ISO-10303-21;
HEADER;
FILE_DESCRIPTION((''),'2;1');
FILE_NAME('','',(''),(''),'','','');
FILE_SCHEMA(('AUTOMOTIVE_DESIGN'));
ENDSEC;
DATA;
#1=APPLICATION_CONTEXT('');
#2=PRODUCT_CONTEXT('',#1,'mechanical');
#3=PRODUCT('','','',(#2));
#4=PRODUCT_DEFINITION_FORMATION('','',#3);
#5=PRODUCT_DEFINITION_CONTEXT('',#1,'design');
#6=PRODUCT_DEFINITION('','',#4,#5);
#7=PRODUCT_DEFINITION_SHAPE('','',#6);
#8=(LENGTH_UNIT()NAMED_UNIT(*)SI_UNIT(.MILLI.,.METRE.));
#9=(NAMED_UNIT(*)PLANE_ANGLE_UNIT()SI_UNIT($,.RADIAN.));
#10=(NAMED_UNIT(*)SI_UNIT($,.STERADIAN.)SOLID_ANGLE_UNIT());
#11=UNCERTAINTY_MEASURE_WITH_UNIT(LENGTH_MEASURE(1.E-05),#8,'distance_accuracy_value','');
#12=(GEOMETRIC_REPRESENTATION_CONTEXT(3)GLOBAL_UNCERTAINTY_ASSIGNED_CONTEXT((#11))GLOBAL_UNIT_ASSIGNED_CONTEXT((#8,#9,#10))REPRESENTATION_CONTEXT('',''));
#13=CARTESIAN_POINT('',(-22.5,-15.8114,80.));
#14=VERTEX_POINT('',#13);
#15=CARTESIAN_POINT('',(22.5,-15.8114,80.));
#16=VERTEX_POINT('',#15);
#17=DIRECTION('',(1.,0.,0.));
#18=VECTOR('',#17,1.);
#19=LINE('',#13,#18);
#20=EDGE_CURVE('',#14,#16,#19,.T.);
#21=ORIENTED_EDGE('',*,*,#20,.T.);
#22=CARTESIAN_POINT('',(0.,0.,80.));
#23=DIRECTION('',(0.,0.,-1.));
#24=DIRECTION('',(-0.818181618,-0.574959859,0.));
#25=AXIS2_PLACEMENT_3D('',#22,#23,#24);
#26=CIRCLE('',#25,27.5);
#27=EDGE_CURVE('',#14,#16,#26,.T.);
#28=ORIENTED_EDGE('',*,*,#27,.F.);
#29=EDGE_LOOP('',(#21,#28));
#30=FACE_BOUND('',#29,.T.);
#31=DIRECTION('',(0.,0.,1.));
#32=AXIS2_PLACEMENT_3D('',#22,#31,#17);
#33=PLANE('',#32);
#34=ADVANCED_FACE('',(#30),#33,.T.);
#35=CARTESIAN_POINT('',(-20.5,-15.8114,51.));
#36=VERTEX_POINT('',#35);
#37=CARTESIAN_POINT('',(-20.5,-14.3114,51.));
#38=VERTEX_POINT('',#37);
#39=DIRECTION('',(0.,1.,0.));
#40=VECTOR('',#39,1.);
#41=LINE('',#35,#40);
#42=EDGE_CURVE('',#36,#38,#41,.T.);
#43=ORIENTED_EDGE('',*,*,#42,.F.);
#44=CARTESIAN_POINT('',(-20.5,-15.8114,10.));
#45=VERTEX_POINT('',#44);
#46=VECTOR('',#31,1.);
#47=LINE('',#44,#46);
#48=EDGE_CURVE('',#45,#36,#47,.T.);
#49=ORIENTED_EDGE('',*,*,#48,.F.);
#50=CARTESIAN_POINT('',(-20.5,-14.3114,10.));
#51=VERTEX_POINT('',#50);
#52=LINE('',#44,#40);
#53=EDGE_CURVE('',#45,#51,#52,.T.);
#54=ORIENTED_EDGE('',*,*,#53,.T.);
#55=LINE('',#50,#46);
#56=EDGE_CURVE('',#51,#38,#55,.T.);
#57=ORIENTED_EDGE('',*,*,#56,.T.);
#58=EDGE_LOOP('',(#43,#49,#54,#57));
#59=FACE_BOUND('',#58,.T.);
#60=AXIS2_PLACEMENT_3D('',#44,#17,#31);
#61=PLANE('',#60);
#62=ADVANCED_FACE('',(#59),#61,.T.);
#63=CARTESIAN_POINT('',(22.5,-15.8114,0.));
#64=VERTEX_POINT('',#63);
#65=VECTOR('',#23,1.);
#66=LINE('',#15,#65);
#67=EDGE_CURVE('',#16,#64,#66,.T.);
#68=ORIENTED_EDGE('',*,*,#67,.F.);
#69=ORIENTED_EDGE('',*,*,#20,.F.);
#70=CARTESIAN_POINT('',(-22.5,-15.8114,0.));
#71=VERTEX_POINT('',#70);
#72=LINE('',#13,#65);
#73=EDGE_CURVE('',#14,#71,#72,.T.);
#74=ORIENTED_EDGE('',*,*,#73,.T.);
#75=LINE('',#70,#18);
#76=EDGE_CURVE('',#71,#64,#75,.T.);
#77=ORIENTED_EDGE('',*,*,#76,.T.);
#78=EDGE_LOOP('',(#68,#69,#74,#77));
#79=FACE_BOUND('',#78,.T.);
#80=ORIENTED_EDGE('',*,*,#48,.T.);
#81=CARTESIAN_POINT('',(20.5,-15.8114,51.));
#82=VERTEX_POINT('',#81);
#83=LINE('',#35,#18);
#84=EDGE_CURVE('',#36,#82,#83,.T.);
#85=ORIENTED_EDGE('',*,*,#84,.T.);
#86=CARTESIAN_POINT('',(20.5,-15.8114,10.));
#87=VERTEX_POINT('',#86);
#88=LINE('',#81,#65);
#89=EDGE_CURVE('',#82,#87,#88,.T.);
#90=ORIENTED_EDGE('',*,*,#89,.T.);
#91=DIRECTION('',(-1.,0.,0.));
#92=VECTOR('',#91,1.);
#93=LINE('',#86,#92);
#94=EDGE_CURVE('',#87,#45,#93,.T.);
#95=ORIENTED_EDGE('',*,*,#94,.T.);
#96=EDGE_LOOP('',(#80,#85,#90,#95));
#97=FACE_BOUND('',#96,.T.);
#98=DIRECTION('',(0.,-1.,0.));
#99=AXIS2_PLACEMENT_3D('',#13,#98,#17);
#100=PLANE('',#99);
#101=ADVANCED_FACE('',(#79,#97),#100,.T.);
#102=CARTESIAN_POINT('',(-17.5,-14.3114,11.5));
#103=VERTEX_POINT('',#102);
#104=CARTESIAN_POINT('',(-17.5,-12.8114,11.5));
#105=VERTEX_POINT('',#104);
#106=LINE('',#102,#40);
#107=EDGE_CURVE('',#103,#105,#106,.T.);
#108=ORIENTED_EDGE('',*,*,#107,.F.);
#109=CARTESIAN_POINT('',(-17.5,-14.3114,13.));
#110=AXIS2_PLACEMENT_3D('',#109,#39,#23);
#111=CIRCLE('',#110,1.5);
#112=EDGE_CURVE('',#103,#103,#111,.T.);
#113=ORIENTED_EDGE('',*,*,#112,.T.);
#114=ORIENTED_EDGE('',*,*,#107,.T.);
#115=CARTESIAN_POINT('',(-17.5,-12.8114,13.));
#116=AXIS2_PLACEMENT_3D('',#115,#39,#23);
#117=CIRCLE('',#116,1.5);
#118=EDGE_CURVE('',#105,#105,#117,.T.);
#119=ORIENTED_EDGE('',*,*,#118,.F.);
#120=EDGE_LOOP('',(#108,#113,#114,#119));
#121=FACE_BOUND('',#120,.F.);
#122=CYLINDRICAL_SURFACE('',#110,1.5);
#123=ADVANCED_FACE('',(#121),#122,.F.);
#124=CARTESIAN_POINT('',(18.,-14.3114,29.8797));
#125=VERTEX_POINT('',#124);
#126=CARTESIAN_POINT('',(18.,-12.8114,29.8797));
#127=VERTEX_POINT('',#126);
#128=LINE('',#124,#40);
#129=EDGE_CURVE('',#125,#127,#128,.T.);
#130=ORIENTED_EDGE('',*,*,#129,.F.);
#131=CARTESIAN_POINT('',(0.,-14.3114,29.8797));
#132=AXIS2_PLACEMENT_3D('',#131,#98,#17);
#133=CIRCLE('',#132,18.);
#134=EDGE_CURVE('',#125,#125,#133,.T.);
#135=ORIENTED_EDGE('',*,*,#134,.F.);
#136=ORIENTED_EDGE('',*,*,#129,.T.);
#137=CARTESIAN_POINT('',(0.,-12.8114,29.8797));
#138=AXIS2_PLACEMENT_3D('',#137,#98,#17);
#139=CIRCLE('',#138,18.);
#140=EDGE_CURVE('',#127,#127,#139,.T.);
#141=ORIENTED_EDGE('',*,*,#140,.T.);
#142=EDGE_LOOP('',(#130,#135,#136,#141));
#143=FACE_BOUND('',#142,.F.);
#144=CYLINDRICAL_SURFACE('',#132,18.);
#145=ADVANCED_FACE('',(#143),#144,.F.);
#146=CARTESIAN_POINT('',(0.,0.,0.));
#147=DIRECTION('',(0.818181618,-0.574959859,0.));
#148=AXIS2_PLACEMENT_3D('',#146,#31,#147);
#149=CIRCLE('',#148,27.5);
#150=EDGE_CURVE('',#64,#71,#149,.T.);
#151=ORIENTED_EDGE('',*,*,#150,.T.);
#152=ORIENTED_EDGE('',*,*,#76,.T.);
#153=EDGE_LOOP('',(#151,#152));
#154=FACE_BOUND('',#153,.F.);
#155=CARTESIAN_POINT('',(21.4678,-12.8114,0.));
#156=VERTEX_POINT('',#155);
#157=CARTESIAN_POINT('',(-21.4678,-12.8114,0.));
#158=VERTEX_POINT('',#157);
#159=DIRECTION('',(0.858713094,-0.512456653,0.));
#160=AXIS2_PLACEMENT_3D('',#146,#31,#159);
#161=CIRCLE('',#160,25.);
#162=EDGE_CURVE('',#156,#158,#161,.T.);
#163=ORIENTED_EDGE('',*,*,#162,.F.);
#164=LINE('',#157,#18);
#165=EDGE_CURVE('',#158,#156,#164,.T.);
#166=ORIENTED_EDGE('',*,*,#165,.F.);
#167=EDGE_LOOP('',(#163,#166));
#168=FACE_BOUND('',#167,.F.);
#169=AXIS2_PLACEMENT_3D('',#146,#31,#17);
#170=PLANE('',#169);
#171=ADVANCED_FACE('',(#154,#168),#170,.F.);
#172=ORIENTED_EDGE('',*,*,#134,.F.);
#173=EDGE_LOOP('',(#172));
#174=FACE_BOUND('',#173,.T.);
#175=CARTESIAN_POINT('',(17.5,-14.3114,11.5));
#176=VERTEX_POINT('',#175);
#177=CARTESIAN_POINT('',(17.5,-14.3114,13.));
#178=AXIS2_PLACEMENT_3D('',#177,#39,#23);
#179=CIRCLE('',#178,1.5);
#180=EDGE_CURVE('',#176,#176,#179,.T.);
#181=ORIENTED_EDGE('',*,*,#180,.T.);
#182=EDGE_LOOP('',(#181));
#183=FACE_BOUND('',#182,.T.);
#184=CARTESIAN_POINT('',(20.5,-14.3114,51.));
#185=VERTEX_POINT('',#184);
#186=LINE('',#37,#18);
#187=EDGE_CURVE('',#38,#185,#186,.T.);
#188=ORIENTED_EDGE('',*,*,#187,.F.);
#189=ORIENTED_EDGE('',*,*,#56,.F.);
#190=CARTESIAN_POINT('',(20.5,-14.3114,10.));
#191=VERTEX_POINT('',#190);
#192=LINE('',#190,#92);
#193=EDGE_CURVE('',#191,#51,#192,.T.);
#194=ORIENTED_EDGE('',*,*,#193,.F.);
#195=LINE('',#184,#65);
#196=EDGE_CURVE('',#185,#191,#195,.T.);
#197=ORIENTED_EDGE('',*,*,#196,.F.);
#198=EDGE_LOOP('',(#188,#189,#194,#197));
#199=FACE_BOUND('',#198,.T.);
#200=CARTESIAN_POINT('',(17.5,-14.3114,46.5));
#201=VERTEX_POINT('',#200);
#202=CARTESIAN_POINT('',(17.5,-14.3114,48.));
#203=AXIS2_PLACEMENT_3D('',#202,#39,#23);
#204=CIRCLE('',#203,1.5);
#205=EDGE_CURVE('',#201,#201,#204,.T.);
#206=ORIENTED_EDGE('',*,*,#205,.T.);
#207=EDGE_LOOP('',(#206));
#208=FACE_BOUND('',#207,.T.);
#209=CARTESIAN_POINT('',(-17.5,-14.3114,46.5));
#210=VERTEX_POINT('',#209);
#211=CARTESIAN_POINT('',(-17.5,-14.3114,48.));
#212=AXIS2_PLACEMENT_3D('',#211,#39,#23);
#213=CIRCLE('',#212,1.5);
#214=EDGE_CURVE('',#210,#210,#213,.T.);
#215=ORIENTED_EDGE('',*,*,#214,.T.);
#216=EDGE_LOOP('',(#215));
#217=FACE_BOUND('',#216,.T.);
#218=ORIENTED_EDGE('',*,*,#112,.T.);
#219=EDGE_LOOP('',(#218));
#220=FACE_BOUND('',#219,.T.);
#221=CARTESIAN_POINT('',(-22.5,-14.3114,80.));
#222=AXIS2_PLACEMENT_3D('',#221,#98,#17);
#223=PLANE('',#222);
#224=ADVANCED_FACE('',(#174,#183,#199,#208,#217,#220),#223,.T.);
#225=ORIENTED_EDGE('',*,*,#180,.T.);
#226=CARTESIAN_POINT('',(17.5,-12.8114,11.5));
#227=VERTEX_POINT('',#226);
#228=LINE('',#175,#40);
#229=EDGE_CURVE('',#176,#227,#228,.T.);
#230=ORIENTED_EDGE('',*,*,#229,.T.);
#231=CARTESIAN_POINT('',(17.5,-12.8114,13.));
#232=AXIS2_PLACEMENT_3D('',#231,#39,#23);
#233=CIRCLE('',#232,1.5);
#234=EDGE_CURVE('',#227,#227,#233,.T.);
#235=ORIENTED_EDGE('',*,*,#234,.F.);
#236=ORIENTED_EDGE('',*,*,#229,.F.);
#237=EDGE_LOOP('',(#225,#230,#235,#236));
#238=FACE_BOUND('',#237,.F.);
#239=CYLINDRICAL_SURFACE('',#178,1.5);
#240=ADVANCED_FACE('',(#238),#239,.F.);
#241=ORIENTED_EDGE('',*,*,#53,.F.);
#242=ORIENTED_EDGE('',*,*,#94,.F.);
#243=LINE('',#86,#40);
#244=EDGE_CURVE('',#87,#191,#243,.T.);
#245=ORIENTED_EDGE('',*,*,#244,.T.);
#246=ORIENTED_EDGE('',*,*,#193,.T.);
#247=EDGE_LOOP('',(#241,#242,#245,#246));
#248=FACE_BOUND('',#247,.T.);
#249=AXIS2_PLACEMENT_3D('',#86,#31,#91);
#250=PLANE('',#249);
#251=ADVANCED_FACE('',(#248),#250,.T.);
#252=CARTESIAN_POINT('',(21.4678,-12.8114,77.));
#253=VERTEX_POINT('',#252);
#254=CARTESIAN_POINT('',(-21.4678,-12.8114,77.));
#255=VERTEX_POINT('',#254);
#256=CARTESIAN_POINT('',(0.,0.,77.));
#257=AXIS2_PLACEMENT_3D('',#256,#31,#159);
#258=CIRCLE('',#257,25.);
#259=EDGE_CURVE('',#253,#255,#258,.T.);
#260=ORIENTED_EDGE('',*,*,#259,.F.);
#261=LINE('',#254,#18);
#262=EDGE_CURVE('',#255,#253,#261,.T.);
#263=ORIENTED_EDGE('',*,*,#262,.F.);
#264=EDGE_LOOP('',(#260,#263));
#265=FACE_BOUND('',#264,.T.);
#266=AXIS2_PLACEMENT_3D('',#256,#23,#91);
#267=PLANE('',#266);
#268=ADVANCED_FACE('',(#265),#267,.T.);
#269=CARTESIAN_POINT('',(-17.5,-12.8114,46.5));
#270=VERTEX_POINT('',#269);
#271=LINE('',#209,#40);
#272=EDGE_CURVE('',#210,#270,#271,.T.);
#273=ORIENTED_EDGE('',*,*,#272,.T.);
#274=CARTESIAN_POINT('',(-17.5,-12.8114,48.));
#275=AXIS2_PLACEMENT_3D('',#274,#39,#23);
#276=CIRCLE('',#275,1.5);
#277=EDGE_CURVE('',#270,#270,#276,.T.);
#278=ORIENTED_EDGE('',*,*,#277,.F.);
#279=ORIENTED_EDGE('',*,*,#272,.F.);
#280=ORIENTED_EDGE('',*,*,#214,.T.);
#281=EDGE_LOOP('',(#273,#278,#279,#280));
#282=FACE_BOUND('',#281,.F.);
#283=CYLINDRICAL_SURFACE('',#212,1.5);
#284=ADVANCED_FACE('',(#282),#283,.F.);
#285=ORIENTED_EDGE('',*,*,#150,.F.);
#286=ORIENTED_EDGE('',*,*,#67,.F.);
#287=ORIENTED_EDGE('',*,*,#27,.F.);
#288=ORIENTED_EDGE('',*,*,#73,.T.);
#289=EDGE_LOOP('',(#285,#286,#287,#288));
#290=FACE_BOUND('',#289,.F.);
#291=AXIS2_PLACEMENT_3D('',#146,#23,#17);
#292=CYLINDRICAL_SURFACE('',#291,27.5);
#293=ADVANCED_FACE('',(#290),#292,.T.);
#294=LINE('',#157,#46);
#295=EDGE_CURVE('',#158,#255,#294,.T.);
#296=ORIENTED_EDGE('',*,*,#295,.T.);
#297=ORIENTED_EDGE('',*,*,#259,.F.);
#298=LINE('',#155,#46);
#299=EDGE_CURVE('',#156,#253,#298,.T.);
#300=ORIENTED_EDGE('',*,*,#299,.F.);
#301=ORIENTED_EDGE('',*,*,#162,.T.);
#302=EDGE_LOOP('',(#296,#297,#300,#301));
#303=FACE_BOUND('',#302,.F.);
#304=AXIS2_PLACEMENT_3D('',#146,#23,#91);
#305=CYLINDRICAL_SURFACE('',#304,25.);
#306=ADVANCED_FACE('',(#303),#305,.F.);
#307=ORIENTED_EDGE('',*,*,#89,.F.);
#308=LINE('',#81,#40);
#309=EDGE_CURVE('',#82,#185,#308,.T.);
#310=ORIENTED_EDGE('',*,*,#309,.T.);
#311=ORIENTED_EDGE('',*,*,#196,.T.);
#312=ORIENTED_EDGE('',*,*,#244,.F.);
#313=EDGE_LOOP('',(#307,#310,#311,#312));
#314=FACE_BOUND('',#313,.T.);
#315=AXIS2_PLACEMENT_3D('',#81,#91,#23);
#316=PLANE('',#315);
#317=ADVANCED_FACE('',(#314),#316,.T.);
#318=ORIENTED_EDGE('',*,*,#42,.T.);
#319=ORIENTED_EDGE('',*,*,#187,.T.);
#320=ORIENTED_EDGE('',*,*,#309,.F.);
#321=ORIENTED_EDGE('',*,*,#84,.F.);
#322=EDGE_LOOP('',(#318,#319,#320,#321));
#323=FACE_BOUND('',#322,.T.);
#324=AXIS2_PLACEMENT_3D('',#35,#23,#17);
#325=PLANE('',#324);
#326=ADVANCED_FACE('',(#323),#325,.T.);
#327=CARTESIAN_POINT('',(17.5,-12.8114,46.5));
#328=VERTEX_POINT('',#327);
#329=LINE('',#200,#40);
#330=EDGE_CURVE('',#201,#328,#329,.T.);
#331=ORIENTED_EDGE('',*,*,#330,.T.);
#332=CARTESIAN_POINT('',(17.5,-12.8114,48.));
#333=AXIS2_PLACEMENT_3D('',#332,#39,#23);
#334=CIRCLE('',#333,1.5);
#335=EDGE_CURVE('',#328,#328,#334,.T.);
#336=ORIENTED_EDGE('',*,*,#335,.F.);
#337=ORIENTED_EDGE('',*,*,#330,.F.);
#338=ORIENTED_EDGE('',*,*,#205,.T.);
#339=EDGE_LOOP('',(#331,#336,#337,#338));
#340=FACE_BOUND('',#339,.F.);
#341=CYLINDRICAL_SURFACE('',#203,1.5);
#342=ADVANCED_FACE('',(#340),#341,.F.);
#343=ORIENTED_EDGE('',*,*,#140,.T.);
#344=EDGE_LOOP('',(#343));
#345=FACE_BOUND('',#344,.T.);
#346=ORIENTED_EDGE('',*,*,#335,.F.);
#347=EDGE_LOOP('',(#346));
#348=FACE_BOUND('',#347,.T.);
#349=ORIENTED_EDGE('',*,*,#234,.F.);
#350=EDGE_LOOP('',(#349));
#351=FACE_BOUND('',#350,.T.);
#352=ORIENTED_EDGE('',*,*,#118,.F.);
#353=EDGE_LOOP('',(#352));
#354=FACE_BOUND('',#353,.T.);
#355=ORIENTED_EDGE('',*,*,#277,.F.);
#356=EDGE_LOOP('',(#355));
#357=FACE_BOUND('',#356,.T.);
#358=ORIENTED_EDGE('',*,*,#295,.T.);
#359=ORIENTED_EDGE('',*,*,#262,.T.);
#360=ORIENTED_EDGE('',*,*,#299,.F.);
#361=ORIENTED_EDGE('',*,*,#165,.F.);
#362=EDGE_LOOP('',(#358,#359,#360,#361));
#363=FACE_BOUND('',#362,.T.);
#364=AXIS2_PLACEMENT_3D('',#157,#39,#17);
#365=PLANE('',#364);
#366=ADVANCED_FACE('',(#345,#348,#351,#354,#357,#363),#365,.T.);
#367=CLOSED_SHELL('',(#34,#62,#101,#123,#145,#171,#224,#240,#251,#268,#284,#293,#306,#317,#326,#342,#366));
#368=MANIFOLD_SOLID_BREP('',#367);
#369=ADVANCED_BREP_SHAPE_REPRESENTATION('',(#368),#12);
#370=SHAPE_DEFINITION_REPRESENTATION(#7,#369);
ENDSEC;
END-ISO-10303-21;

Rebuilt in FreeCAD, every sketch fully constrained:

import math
import FreeCAD as App
import Part
import Sketcher
Q = App.Units.Quantity

doc = App.newDocument("Part")
body = doc.addObject("PartDesign::Body", "Body")

sketch1 = doc.addObject("Sketcher::SketchObject", "Sketch")
body.addObject(sketch1)
sketch1.AttachmentSupport = (doc.XY_Plane, [""])
sketch1.MapMode = "FlatFace"
sketch1.addGeometry(Part.Circle(App.Vector(0, 0, 0), App.Vector(0, 0, 1), 28), False)
sketch1.addConstraint([
    Sketcher.Constraint("Coincident", 0, 3, -1, 1),
    Sketcher.Constraint("Diameter", 0, Q("55 mm")),
])
pad1 = doc.addObject("PartDesign::Pad", "Pad")
body.addObject(pad1)
pad1.Profile = sketch1
pad1.Length = 80

sketch2 = doc.addObject("Sketcher::SketchObject", "Sketch001")
body.addObject(sketch2)
sketch2.AttachmentSupport = (doc.XY_Plane, [""])
sketch2.MapMode = "FlatFace"
sketch2.AttachmentOffset = App.Placement(App.Vector(0, 0, 80), App.Rotation())
sketch2.addGeometry([
    Part.LineSegment(App.Vector(22, -16, 0), App.Vector(-22, -16, 0)),
    Part.ArcOfCircle(Part.Circle(App.Vector(0, 0, 0), App.Vector(0, 0, 1), 28), math.radians(-145), math.radians(-35)),
], False)
sketch2.addConstraint([
    Sketcher.Constraint("Coincident", 0, 1, 1, 2),
    Sketcher.Constraint("Coincident", 1, 1, 0, 2),
    Sketcher.Constraint("Horizontal", 0),
    Sketcher.Constraint("Coincident", 1, 3, -1, 1),
    Sketcher.Constraint("DistanceX", 0, 2, 0, 1, Q("45 mm")),
    Sketcher.Constraint("Radius", 1, Q("27.5 mm")),
])
pocket1 = doc.addObject("PartDesign::Pocket", "Pocket")
body.addObject(pocket1)
pocket1.Profile = sketch2
pocket1.Length = 80

sketch3 = doc.addObject("Sketcher::SketchObject", "Sketch002")
body.addObject(sketch3)
sketch3.AttachmentSupport = (doc.XZ_Plane, [""])
sketch3.MapMode = "FlatFace"
sketch3.AttachmentOffset = App.Placement(App.Vector(0, 0, 15.8114), App.Rotation())
sketch3.addGeometry([
    Part.LineSegment(App.Vector(-20, 10, 0), App.Vector(20, 10, 0)),
    Part.LineSegment(App.Vector(20, 10, 0), App.Vector(20, 51, 0)),
    Part.LineSegment(App.Vector(20, 51, 0), App.Vector(-20, 51, 0)),
    Part.LineSegment(App.Vector(-20, 51, 0), App.Vector(-20, 10, 0)),
], False)
sketch3.addConstraint([
    Sketcher.Constraint("Coincident", 0, 2, 1, 1),
    Sketcher.Constraint("Coincident", 1, 2, 2, 1),
    Sketcher.Constraint("Coincident", 2, 2, 3, 1),
    Sketcher.Constraint("Coincident", 3, 2, 0, 1),
    Sketcher.Constraint("Horizontal", 0),
    Sketcher.Constraint("Vertical", 1),
    Sketcher.Constraint("Horizontal", 2),
    Sketcher.Constraint("Vertical", 3),
    Sketcher.Constraint("Equal", 2, 1),
    Sketcher.Constraint("DistanceX", 0, 1, 0, 2, Q("41 mm")),
    Sketcher.Constraint("DistanceY", -1, 1, 0, 2, Q("10 mm")),
    Sketcher.Constraint("DistanceX", -1, 1, 0, 2, Q("20.5 mm")),
])
pocket2 = doc.addObject("PartDesign::Pocket", "Pocket001")
body.addObject(pocket2)
pocket2.Profile = sketch3
pocket2.Length = 1.5

sketch4 = doc.addObject("Sketcher::SketchObject", "Sketch003")
body.addObject(sketch4)
sketch4.AttachmentSupport = (doc.XY_Plane, [""])
sketch4.MapMode = "FlatFace"
sketch4.addGeometry([
    Part.LineSegment(App.Vector(21, -13, 0), App.Vector(-21, -13, 0)),
    Part.ArcOfCircle(Part.Circle(App.Vector(0, 0, 0), App.Vector(0, 0, 1), 25), math.radians(-31), math.radians(211)),
], False)
sketch4.addConstraint([
    Sketcher.Constraint("Coincident", 0, 1, 1, 1),
    Sketcher.Constraint("Coincident", 1, 2, 0, 2),
    Sketcher.Constraint("Horizontal", 0),
    Sketcher.Constraint("Coincident", 1, 3, -1, 1),
    Sketcher.Constraint("Radius", 1, Q("25 mm")),
    Sketcher.Constraint("DistanceX", 0, 2, 0, 1, Q("42.9356 mm")),
])
pocket3 = doc.addObject("PartDesign::Pocket", "Pocket002")
body.addObject(pocket3)
pocket3.Profile = sketch4
pocket3.Length = 77
pocket3.Reversed = True

sketch5 = doc.addObject("Sketcher::SketchObject", "Sketch004")
body.addObject(sketch5)
sketch5.AttachmentSupport = (doc.XZ_Plane, [""])
sketch5.MapMode = "FlatFace"
sketch5.AttachmentOffset = App.Placement(App.Vector(0, 0, 14.3114), App.Rotation())
sketch5.addGeometry(Part.Circle(App.Vector(0, 30, 0), App.Vector(0, 0, 1), 18), False)
sketch5.addConstraint([
    Sketcher.Constraint("PointOnObject", 0, 3, -2),
    Sketcher.Constraint("Diameter", 0, Q("36 mm")),
    Sketcher.Constraint("DistanceY", -1, 1, 0, 3, Q("29.8797 mm")),
])
pocket4 = doc.addObject("PartDesign::Pocket", "Pocket003")
body.addObject(pocket4)
pocket4.Profile = sketch5
pocket4.Length = 31

sketch6 = doc.addObject("Sketcher::SketchObject", "Sketch005")
body.addObject(sketch6)
sketch6.AttachmentSupport = (doc.XZ_Plane, [""])
sketch6.MapMode = "FlatFace"
sketch6.AttachmentOffset = App.Placement(App.Vector(0, 0, 14.3114), App.Rotation())
sketch6.addGeometry(Part.Circle(App.Vector(-17.5, 48, 0), App.Vector(0, 0, 1), 1.5), False)
sketch6.addConstraint([
    Sketcher.Constraint("Diameter", 0, Q("3 mm")),
    Sketcher.Constraint("DistanceY", -1, 1, 0, 3, Q("48 mm")),
    Sketcher.Constraint("DistanceX", 0, 3, -1, 1, Q("17.5 mm")),
])
doc.recompute()
hole = doc.addObject("PartDesign::Hole", "Hole")
body.addObject(hole)
hole.Profile = sketch6
hole.ThreadType = "None"
hole.Diameter = 3
hole.DepthType = "Dimension"
hole.Depth = 8
hole.DrillPoint = "Flat"

sketch7 = doc.addObject("Sketcher::SketchObject", "Sketch006")
body.addObject(sketch7)
sketch7.AttachmentSupport = (doc.XZ_Plane, [""])
sketch7.MapMode = "FlatFace"
sketch7.AttachmentOffset = App.Placement(App.Vector(0, 0, 14.3114), App.Rotation())
sketch7.addGeometry(Part.Circle(App.Vector(17.5, 48, 0), App.Vector(0, 0, 1), 1.5), False)
sketch7.addConstraint([
    Sketcher.Constraint("Diameter", 0, Q("3 mm")),
    Sketcher.Constraint("DistanceY", -1, 1, 0, 3, Q("48 mm")),
    Sketcher.Constraint("DistanceX", -1, 1, 0, 3, Q("17.5 mm")),
])
doc.recompute()
hole2 = doc.addObject("PartDesign::Hole", "Hole001")
body.addObject(hole2)
hole2.Profile = sketch7
hole2.ThreadType = "None"
hole2.Diameter = 3
hole2.DepthType = "Dimension"
hole2.Depth = 8
hole2.DrillPoint = "Flat"

sketch8 = doc.addObject("Sketcher::SketchObject", "Sketch007")
body.addObject(sketch8)
sketch8.AttachmentSupport = (doc.XZ_Plane, [""])
sketch8.MapMode = "FlatFace"
sketch8.AttachmentOffset = App.Placement(App.Vector(0, 0, 14.3114), App.Rotation())
sketch8.addGeometry(Part.Circle(App.Vector(-17.5, 13, 0), App.Vector(0, 0, 1), 1.5), False)
sketch8.addConstraint([
    Sketcher.Constraint("Diameter", 0, Q("3 mm")),
    Sketcher.Constraint("DistanceY", -1, 1, 0, 3, Q("13 mm")),
    Sketcher.Constraint("DistanceX", 0, 3, -1, 1, Q("17.5 mm")),
])
doc.recompute()
hole3 = doc.addObject("PartDesign::Hole", "Hole002")
body.addObject(hole3)
hole3.Profile = sketch8
hole3.ThreadType = "None"
hole3.Diameter = 3
hole3.DepthType = "Dimension"
hole3.Depth = 8
hole3.DrillPoint = "Flat"

sketch9 = doc.addObject("Sketcher::SketchObject", "Sketch008")
body.addObject(sketch9)
sketch9.AttachmentSupport = (doc.XZ_Plane, [""])
sketch9.MapMode = "FlatFace"
sketch9.AttachmentOffset = App.Placement(App.Vector(0, 0, 14.3114), App.Rotation())
sketch9.addGeometry(Part.Circle(App.Vector(17.5, 13, 0), App.Vector(0, 0, 1), 1.5), False)
sketch9.addConstraint([
    Sketcher.Constraint("Diameter", 0, Q("3 mm")),
    Sketcher.Constraint("DistanceY", -1, 1, 0, 3, Q("13 mm")),
    Sketcher.Constraint("DistanceX", -1, 1, 0, 3, Q("17.5 mm")),
])
doc.recompute()
hole4 = doc.addObject("PartDesign::Hole", "Hole003")
body.addObject(hole4)
hole4.Profile = sketch9
hole4.ThreadType = "None"
hole4.Diameter = 3
hole4.DepthType = "Dimension"
hole4.Depth = 8
hole4.DrillPoint = "Flat"

doc.recompute()
